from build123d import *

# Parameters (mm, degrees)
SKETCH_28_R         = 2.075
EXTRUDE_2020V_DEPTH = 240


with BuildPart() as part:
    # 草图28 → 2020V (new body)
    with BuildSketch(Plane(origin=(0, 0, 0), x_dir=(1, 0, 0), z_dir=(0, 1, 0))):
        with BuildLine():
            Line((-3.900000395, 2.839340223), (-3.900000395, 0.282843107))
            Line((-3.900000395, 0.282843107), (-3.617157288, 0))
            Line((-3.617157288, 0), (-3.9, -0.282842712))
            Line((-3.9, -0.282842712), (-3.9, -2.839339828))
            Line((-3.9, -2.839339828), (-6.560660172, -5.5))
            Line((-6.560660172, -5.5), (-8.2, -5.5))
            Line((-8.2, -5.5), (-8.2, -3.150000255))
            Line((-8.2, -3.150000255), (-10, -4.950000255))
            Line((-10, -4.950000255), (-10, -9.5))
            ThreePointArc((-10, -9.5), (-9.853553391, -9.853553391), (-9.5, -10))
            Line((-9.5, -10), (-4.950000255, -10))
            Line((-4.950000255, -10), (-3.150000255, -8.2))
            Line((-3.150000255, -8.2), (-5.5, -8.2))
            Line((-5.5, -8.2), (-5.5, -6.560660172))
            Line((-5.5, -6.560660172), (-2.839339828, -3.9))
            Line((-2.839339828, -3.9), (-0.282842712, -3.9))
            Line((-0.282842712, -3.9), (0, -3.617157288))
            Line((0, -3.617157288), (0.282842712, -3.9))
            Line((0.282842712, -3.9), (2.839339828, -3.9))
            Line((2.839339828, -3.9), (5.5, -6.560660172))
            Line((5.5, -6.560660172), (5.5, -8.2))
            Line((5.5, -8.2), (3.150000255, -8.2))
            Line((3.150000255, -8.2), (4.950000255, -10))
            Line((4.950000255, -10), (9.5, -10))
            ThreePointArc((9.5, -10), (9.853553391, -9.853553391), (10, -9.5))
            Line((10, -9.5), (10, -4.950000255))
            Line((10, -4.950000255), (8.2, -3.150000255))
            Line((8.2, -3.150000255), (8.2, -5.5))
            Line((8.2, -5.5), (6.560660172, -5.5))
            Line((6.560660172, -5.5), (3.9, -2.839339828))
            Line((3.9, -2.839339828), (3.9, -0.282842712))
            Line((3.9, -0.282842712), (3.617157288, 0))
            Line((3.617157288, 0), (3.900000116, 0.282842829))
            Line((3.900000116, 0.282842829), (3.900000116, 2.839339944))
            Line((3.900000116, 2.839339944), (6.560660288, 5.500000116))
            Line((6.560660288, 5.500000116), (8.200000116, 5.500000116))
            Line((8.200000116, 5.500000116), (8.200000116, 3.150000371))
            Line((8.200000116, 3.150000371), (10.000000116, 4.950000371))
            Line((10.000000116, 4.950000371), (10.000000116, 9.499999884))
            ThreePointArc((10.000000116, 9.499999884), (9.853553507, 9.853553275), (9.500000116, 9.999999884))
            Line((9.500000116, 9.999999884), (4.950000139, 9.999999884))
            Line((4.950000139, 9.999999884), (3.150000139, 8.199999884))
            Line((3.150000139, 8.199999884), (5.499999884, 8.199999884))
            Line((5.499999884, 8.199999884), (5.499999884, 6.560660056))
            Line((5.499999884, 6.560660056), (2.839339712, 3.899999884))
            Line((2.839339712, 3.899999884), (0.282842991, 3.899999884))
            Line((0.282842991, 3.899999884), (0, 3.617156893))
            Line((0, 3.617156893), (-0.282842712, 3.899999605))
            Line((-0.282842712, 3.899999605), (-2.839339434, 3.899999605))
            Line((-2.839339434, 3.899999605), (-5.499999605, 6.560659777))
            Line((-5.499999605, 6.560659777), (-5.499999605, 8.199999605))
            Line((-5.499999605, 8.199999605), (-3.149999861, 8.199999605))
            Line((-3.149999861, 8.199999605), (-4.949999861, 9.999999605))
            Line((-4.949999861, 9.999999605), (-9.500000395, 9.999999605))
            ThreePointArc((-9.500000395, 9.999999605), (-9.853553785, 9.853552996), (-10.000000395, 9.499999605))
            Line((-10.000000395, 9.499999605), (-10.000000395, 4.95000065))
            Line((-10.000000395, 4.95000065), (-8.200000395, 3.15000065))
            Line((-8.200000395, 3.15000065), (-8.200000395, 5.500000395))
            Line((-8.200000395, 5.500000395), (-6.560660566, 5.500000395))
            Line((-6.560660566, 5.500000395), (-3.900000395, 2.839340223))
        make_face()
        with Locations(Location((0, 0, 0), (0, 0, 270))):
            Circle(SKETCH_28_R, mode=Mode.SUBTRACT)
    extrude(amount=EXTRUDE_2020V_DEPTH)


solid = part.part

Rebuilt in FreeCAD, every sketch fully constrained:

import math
import FreeCAD as App
import Part
import Sketcher

V = App.Vector
Q = App.Units.Quantity

doc = App.newDocument("Part")
body = doc.addObject("PartDesign::Body", "Body")

# Sketch on XZ plane
sketch1 = doc.addObject("Sketcher::SketchObject", "Sketch")
body.addObject(sketch1)
sketch1.AttachmentSupport = (doc.XZ_Plane, [""])
sketch1.MapMode = "FlatFace"
sketch1.addGeometry([
    Part.LineSegment(V(-3.9, -2.84, 0), V(-3.9, -0.28, 0)),  # 0
    Part.LineSegment(V(-3.9, -0.28, 0), V(-3.62, 0, 0)),  # 1
    Part.LineSegment(V(-3.62, 0, 0), V(-3.9, 0.28, 0)),  # 2
    Part.LineSegment(V(-3.9, 0.28, 0), V(-3.9, 2.84, 0)),  # 3
    Part.LineSegment(V(-3.9, 2.84, 0), V(-6.56, 5.5, 0)),  # 4
    Part.LineSegment(V(-6.56, 5.5, 0), V(-8.2, 5.5, 0)),  # 5
    Part.LineSegment(V(-8.2, 5.5, 0), V(-8.2, 3.15, 0)),  # 6
    Part.LineSegment(V(-8.2, 3.15, 0), V(-10, 4.95, 0)),  # 7
    Part.LineSegment(V(-10, 4.95, 0), V(-10, 9.5, 0)),  # 8
    Part.ArcOfCircle(Part.Circle(V(-9.5, 9.5, 0), V(0, 0, 1), 0.5), math.radians(90), math.radians(180)),  # 9
    Part.LineSegment(V(-9.5, 10, 0), V(-4.95, 10, 0)),  # 10
    Part.LineSegment(V(-4.95, 10, 0), V(-3.15, 8.2, 0)),  # 11
    Part.LineSegment(V(-3.15, 8.2, 0), V(-5.5, 8.2, 0)),  # 12
    Part.LineSegment(V(-5.5, 8.2, 0), V(-5.5, 6.56, 0)),  # 13
    Part.LineSegment(V(-5.5, 6.56, 0), V(-2.84, 3.9, 0)),  # 14
    Part.LineSegment(V(-2.84, 3.9, 0), V(-0.28, 3.9, 0)),  # 15
    Part.LineSegment(V(-0.28, 3.9, 0), V(0, 3.62, 0)),  # 16
    Part.LineSegment(V(0, 3.62, 0), V(0.28, 3.9, 0)),  # 17
    Part.LineSegment(V(0.28, 3.9, 0), V(2.84, 3.9, 0)),  # 18
    Part.LineSegment(V(2.84, 3.9, 0), V(5.5, 6.56, 0)),  # 19
    Part.LineSegment(V(5.5, 6.56, 0), V(5.5, 8.2, 0)),  # 20
    Part.LineSegment(V(5.5, 8.2, 0), V(3.15, 8.2, 0)),  # 21
    Part.LineSegment(V(3.15, 8.2, 0), V(4.95, 10, 0)),  # 22
    Part.LineSegment(V(4.95, 10, 0), V(9.5, 10, 0)),  # 23
    Part.ArcOfCircle(Part.Circle(V(9.5, 9.5, 0), V(0, 0, 1), 0.5), math.radians(0), math.radians(90)),  # 24
    Part.LineSegment(V(10, 9.5, 0), V(10, 4.95, 0)),  # 25
    Part.LineSegment(V(10, 4.95, 0), V(8.2, 3.15, 0)),  # 26
    Part.LineSegment(V(8.2, 3.15, 0), V(8.2, 5.5, 0)),  # 27
    Part.LineSegment(V(8.2, 5.5, 0), V(6.56, 5.5, 0)),  # 28
    Part.LineSegment(V(6.56, 5.5, 0), V(3.9, 2.84, 0)),  # 29
    Part.LineSegment(V(3.9, 2.84, 0), V(3.9, 0.28, 0)),  # 30
    Part.LineSegment(V(3.9, 0.28, 0), V(3.62, 0, 0)),  # 31
    Part.LineSegment(V(3.62, 0, 0), V(3.9, -0.28, 0)),  # 32
    Part.LineSegment(V(3.9, -0.28, 0), V(3.9, -2.84, 0)),  # 33
    Part.LineSegment(V(3.9, -2.84, 0), V(6.56, -5.5, 0)),  # 34
    Part.LineSegment(V(6.56, -5.5, 0), V(8.2, -5.5, 0)),  # 35
    Part.LineSegment(V(8.2, -5.5, 0), V(8.2, -3.15, 0)),  # 36
    Part.LineSegment(V(8.2, -3.15, 0), V(10, -4.95, 0)),  # 37
    Part.LineSegment(V(10, -4.95, 0), V(10, -9.5, 0)),  # 38
    Part.ArcOfCircle(Part.Circle(V(9.5, -9.5, 0), V(0, 0, 1), 0.5), math.radians(-90), math.radians(0)),  # 39
    Part.LineSegment(V(9.5, -10, 0), V(4.95, -10, 0)),  # 40
    Part.LineSegment(V(4.95, -10, 0), V(3.15, -8.2, 0)),  # 41
    Part.LineSegment(V(3.15, -8.2, 0), V(5.5, -8.2, 0)),  # 42
    Part.LineSegment(V(5.5, -8.2, 0), V(5.5, -6.56, 0)),  # 43
    Part.LineSegment(V(5.5, -6.56, 0), V(2.84, -3.9, 0)),  # 44
    Part.LineSegment(V(2.84, -3.9, 0), V(0.28, -3.9, 0)),  # 45
    Part.LineSegment(V(0.28, -3.9, 0), V(0, -3.62, 0)),  # 46
    Part.LineSegment(V(0, -3.62, 0), V(-0.28, -3.9, 0)),  # 47
    Part.LineSegment(V(-0.28, -3.9, 0), V(-2.84, -3.9, 0)),  # 48
    Part.LineSegment(V(-2.84, -3.9, 0), V(-5.5, -6.56, 0)),  # 49
    Part.LineSegment(V(-5.5, -6.56, 0), V(-5.5, -8.2, 0)),  # 50
    Part.LineSegment(V(-5.5, -8.2, 0), V(-3.15, -8.2, 0)),  # 51
    Part.LineSegment(V(-3.15, -8.2, 0), V(-4.95, -10, 0)),  # 52
    Part.LineSegment(V(-4.95, -10, 0), V(-9.5, -10, 0)),  # 53
    Part.ArcOfCircle(Part.Circle(V(-9.5, -9.5, 0), V(0, 0, 1), 0.5), math.radians(180), math.radians(270)),  # 54
    Part.LineSegment(V(-10, -9.5, 0), V(-10, -4.95, 0)),  # 55
    Part.LineSegment(V(-10, -4.95, 0), V(-8.2, -3.15, 0)),  # 56
    Part.LineSegment(V(-8.2, -3.15, 0), V(-8.2, -5.5, 0)),  # 57
    Part.LineSegment(V(-8.2, -5.5, 0), V(-6.56, -5.5, 0)),  # 58
    Part.LineSegment(V(-6.56, -5.5, 0), V(-3.9, -2.84, 0)),  # 59
    Part.Circle(V(0, 0, 0), V(0, 0, 1), 2.08),  # 60
], False)
sketch1.addConstraint([
    Sketcher.Constraint("Coincident", 0, 2, 1, 1),
    Sketcher.Constraint("Coincident", 1, 2, 2, 1),
    Sketcher.Constraint("Coincident", 2, 2, 3, 1),
    Sketcher.Constraint("Coincident", 3, 2, 4, 1),
    Sketcher.Constraint("Coincident", 4, 2, 5, 1),
    Sketcher.Constraint("Coincident", 5, 2, 6, 1),
    Sketcher.Constraint("Coincident", 6, 2, 7, 1),
    Sketcher.Constraint("Coincident", 7, 2, 8, 1),
    Sketcher.Constraint("Tangent", 8, 2, 9, 2),
    Sketcher.Constraint("Tangent", 9, 1, 10, 1),
    Sketcher.Constraint("Coincident", 10, 2, 11, 1),
    Sketcher.Constraint("Coincident", 11, 2, 12, 1),
    Sketcher.Constraint("Coincident", 12, 2, 13, 1),
    Sketcher.Constraint("Coincident", 13, 2, 14, 1),
    Sketcher.Constraint("Coincident", 14, 2, 15, 1),
    Sketcher.Constraint("Coincident", 15, 2, 16, 1),
    Sketcher.Constraint("Coincident", 16, 2, 17, 1),
    Sketcher.Constraint("Coincident", 17, 2, 18, 1),
    Sketcher.Constraint("Coincident", 18, 2, 19, 1),
    Sketcher.Constraint("Coincident", 19, 2, 20, 1),
    Sketcher.Constraint("Coincident", 20, 2, 21, 1),
    Sketcher.Constraint("Coincident", 21, 2, 22, 1),
    Sketcher.Constraint("Coincident", 22, 2, 23, 1),
    Sketcher.Constraint("Tangent", 23, 2, 24, 2),
    Sketcher.Constraint("Tangent", 24, 1, 25, 1),
    Sketcher.Constraint("Coincident", 25, 2, 26, 1),
    Sketcher.Constraint("Coincident", 26, 2, 27, 1),
    Sketcher.Constraint("Coincident", 27, 2, 28, 1),
    Sketcher.Constraint("Coincident", 28, 2, 29, 1),
    Sketcher.Constraint("Coincident", 29, 2, 30, 1),
    Sketcher.Constraint("Coincident", 30, 2, 31, 1),
    Sketcher.Constraint("Coincident", 31, 2, 32, 1),
    Sketcher.Constraint("Coincident", 32, 2, 33, 1),
    Sketcher.Constraint("Coincident", 33, 2, 34, 1),
    Sketcher.Constraint("Coincident", 34, 2, 35, 1),
    Sketcher.Constraint("Coincident", 35, 2, 36, 1),
    Sketcher.Constraint("Coincident", 36, 2, 37, 1),
    Sketcher.Constraint("Coincident", 37, 2, 38, 1),
    Sketcher.Constraint("Tangent", 38, 2, 39, 2),
    Sketcher.Constraint("Tangent", 39, 1, 40, 1),
    Sketcher.Constraint("Coincident", 40, 2, 41, 1),
    Sketcher.Constraint("Coincident", 41, 2, 42, 1),
    Sketcher.Constraint("Coincident", 42, 2, 43, 1),
    Sketcher.Constraint("Coincident", 43, 2, 44, 1),
    Sketcher.Constraint("Coincident", 44, 2, 45, 1),
    Sketcher.Constraint("Coincident", 45, 2, 46, 1),
    Sketcher.Constraint("Coincident", 46, 2, 47, 1),
    Sketcher.Constraint("Coincident", 47, 2, 48, 1),
    Sketcher.Constraint("Coincident", 48, 2, 49, 1),
    Sketcher.Constraint("Coincident", 49, 2, 50, 1),
    Sketcher.Constraint("Coincident", 50, 2, 51, 1),
    Sketcher.Constraint("Coincident", 51, 2, 52, 1),
    Sketcher.Constraint("Coincident", 52, 2, 53, 1),
    Sketcher.Constraint("Tangent", 53, 2, 54, 2),
    Sketcher.Constraint("Tangent", 54, 1, 55, 1),
    Sketcher.Constraint("Coincident", 55, 2, 56, 1),
    Sketcher.Constraint("Coincident", 56, 2, 57, 1),
    Sketcher.Constraint("Coincident", 57, 2, 58, 1),
    Sketcher.Constraint("Coincident", 58, 2, 59, 1),
    Sketcher.Constraint("Coincident", 59, 2, 0, 1),
    Sketcher.Constraint("Vertical", 0),
    Sketcher.Constraint("Vertical", 3),
    Sketcher.Constraint("Horizontal", 5),
    Sketcher.Constraint("Vertical", 6),
    Sketcher.Constraint("Vertical", 8),
    Sketcher.Constraint("Horizontal", 10),
    Sketcher.Constraint("Horizontal", 12),
    Sketcher.Constraint("Vertical", 13),
    Sketcher.Constraint("Horizontal", 15),
    Sketcher.Constraint("Horizontal", 18),
    Sketcher.Constraint("Vertical", 20),
    Sketcher.Constraint("Horizontal", 21),
    Sketcher.Constraint("Horizontal", 23),
    Sketcher.Constraint("Vertical", 25),
    Sketcher.Constraint("Vertical", 27),
    Sketcher.Constraint("Horizontal", 28),
    Sketcher.Constraint("Vertical", 30),
    Sketcher.Constraint("Vertical", 33),
    Sketcher.Constraint("Horizontal", 35),
    Sketcher.Constraint("Vertical", 36),
    Sketcher.Constraint("Vertical", 38),
    Sketcher.Constraint("Horizontal", 40),
    Sketcher.Constraint("Horizontal", 42),
    Sketcher.Constraint("Vertical", 43),
    Sketcher.Constraint("Horizontal", 45),
    Sketcher.Constraint("Horizontal", 48),
    Sketcher.Constraint("Vertical", 50),
    Sketcher.Constraint("Horizontal", 51),
    Sketcher.Constraint("Horizontal", 53),
    Sketcher.Constraint("Vertical", 55),
    Sketcher.Constraint("Vertical", 57),
    Sketcher.Constraint("Horizontal", 58),
    Sketcher.Constraint("Coincident", 60, 3, -1, 1),
    Sketcher.Constraint("Equal", 9, 24),
    Sketcher.Constraint("Equal", 24, 39),
    Sketcher.Constraint("Equal", 39, 54),
    Sketcher.Constraint("Symmetric", 9, 3, 39, 3, -1, 1),
    Sketcher.Constraint("Symmetric", 24, 3, 54, 3, -1, 1),
    Sketcher.Constraint("Symmetric", 0, 2, 30, 2, -1, 1),
    Sketcher.Constraint("Symmetric", 1, 2, 31, 2, -1, 1),
    Sketcher.Constraint("Symmetric", 2, 2, 32, 2, -1, 1),
    Sketcher.Constraint("Symmetric", 4, 2, 34, 2, -1, 1),
    Sketcher.Constraint("Symmetric", 6, 2, 36, 2, -1, 1),
    Sketcher.Constraint("Symmetric", 11, 2, 41, 2, -1, 1),
    Sketcher.Constraint("Symmetric", 13, 2, 43, 2, -1, 1),
    Sketcher.Constraint("Symmetric", 14, 2, 44, 2, -1, 1),
    Sketcher.Constraint("Symmetric", 16, 2, 46, 2, -1, 1),
    Sketcher.Constraint("Symmetric", 17, 2, 47, 2, -1, 1),
    Sketcher.Constraint("Symmetric", 19, 2, 49, 2, -1, 1),
    Sketcher.Constraint("Symmetric", 21, 2, 51, 2, -1, 1),
    Sketcher.Constraint("Symmetric", 26, 2, 56, 2, -1, 1),
    Sketcher.Constraint("Symmetric", 28, 2, 58, 2, -1, 1),
    Sketcher.Constraint("Symmetric", 9, 3, 24, 3, -2),
    Sketcher.Constraint("Symmetric", 15, 2, 17, 2, -2),
    Sketcher.Constraint("Symmetric", 13, 2, 19, 2, -2),
    Sketcher.Constraint("Symmetric", 11, 2, 21, 2, -2),
    Sketcher.Constraint("Symmetric", 6, 2, 26, 2, -2),
    Sketcher.Constraint("Symmetric", 4, 2, 28, 2, -2),
    Sketcher.Constraint("Symmetric", 3, 2, 29, 2, -2),
    Sketcher.Constraint("PointOnObject", 1, 2, -1),
    Sketcher.Constraint("PointOnObject", 16, 2, -2),
    Sketcher.Constraint("Perpendicular", 1, 2),
    Sketcher.Constraint("Parallel", 2, 4),
    Sketcher.Constraint("Parallel", 4, 7),
    Sketcher.Constraint("Parallel", 7, 11),
    Sketcher.Constraint("Parallel", 11, 14),
    Sketcher.Constraint("Parallel", 14, 16),
    Sketcher.Constraint("Perpendicular", 16, 17),
    Sketcher.Constraint("Parallel", 17, 19),
    Sketcher.Constraint("Parallel", 19, 22),
    Sketcher.Constraint("Parallel", 22, 26),
    Sketcher.Constraint("Parallel", 32, 34),
    Sketcher.Constraint("Parallel", 34, 37),
    Sketcher.Constraint("Parallel", 37, 41),
    Sketcher.Constraint("Parallel", 44, 46),
    Sketcher.Constraint("Parallel", 47, 49),
    Sketcher.Constraint("Parallel", 49, 52),
    Sketcher.Constraint("Parallel", 52, 56),
    Sketcher.Constraint("Parallel", 56, 59),
    Sketcher.Constraint("Equal", 48, 0),
    Sketcher.Constraint("Equal", 51, 6),
    Sketcher.Constraint("Equal", 53, 8),
    Sketcher.Constraint("Equal", 58, 13),
    Sketcher.Constraint("Equal", 7, 11),
    Sketcher.Constraint("Equal", 4, 14),
    Sketcher.Constraint("Equal", 2, 16),
    Sketcher.Constraint("Radius", 9, Q("0.5 mm")),
    Sketcher.Constraint("Diameter", 60, Q("4.15 mm")),
    Sketcher.Constraint("DistanceX", 7, 2, -1, 1, Q("10 mm")),
    Sketcher.Constraint("Distance", 1, Q("0.400001 mm")),
    Sketcher.Constraint("DistanceX", 10, 1, 10, 2, Q("4.55 mm")),
    Sketcher.Constraint("DistanceX", 12, 2, 12, 1, Q("2.35 mm")),
    Sketcher.Constraint("DistanceX", 0, 2, -1, 1, Q("3.9 mm")),
    Sketcher.Constraint("DistanceY", -1, 1, 4, 2, Q("5.5 mm")),
    Sketcher.Constraint("DistanceX", 5, 2, 5, 1, Q("1.63934 mm")),
])
pad1 = doc.addObject("PartDesign::Pad", "Pad")
body.addObject(pad1)
pad1.Profile = sketch1
pad1.Length = 240
pad1.Reversed = True

doc.recompute()
